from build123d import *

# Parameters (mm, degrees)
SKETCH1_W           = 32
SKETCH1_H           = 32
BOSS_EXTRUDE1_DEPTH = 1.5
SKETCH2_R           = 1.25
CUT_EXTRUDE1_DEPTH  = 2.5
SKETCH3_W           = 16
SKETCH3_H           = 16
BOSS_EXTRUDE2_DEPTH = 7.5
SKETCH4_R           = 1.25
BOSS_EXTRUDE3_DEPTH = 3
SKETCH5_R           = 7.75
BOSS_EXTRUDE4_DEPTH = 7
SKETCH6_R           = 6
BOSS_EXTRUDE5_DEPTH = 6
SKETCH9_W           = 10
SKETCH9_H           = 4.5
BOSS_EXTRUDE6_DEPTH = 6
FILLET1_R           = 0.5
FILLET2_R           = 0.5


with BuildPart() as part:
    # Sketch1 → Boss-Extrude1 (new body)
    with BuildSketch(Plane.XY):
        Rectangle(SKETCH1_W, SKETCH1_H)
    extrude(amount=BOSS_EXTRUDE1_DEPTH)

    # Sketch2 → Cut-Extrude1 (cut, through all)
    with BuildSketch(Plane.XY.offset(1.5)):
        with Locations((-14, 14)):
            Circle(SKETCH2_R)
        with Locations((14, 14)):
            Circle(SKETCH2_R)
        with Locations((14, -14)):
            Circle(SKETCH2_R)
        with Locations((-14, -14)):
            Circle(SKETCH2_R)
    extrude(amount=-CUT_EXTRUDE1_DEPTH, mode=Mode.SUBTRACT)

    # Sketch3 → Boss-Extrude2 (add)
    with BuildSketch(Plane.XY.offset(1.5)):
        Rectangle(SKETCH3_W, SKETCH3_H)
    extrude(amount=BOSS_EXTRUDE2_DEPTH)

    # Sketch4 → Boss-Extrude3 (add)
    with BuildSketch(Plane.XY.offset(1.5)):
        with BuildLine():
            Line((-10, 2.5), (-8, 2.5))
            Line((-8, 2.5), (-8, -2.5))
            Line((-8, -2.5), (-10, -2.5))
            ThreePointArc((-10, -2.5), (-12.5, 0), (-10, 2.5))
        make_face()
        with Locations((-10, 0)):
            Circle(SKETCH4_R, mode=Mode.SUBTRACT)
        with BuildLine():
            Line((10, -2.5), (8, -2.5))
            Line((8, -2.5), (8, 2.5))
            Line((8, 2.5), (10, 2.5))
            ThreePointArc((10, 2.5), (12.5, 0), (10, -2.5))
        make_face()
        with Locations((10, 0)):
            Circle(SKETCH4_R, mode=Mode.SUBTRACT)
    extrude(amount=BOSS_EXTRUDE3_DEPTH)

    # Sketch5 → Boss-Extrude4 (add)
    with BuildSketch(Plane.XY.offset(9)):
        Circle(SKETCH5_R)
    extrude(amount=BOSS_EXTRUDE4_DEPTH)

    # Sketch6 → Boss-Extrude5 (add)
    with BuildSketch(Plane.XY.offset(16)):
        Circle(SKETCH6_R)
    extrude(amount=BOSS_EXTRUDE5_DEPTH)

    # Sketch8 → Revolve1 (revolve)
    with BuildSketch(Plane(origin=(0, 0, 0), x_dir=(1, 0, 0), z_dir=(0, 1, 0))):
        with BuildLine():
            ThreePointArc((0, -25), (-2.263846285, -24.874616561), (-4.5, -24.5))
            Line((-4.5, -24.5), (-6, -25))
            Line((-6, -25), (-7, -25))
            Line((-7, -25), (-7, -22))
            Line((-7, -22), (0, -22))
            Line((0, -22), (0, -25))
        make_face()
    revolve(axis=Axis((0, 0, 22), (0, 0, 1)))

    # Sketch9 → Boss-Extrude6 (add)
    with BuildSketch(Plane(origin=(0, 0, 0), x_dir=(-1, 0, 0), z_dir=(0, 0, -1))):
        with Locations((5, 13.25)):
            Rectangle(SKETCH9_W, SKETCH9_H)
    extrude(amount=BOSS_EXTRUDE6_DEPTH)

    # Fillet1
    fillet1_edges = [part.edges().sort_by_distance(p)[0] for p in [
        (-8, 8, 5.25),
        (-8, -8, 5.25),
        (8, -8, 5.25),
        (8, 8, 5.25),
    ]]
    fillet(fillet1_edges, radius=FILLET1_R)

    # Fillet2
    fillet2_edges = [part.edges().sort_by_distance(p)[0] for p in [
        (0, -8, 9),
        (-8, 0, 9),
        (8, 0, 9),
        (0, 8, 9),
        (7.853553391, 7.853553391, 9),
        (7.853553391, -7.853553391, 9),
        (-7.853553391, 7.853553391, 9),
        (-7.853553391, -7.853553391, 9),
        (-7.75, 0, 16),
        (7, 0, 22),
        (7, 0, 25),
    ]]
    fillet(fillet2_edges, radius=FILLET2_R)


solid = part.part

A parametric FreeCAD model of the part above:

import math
import FreeCAD as App
import Part
import Sketcher
Q = App.Units.Quantity


def edges_at(feature, points):
    """Names of the edges that pass closest to the given points."""
    edges = feature.Shape.Edges
    near = lambda p: min(range(len(edges)), key=lambda i: edges[i].distToShape(Part.Vertex(*p))[0])
    return sorted({f"Edge{near(p) + 1}" for p in points})

doc = App.newDocument("Part")
body = doc.addObject("PartDesign::Body", "Body")

sketch1 = body.newObject("Sketcher::SketchObject", "Sketch")
sketch1.AttachmentSupport = (doc.getObject("XY_Plane"), [""])
sketch1.MapMode = "FlatFace"
sketch1.addGeometry([
    Part.LineSegment(App.Vector(-16, 16, 0), App.Vector(-16, -16, 0)),
    Part.LineSegment(App.Vector(-16, -16, 0), App.Vector(16, -16, 0)),
    Part.LineSegment(App.Vector(16, -16, 0), App.Vector(16, 16, 0)),
    Part.LineSegment(App.Vector(16, 16, 0), App.Vector(-16, 16, 0)),
], False)
sketch1.addConstraint([
    Sketcher.Constraint("Coincident", 0, 2, 1, 1),
    Sketcher.Constraint("Coincident", 1, 2, 2, 1),
    Sketcher.Constraint("Coincident", 2, 2, 3, 1),
    Sketcher.Constraint("Coincident", 3, 2, 0, 1),
    Sketcher.Constraint("Vertical", 0),
    Sketcher.Constraint("Horizontal", 1),
    Sketcher.Constraint("Vertical", 2),
    Sketcher.Constraint("Horizontal", 3),
    Sketcher.Constraint("Symmetric", 0, 2, 2, 2, -1, 1),
    Sketcher.Constraint("Equal", 3, 0),
    Sketcher.Constraint("DistanceX", 1, 1, 1, 2, Q("32 mm")),
])
pad1 = body.newObject("PartDesign::Pad", "Pad")
pad1.Profile = sketch1
pad1.Length = 1.5

sketch2 = body.newObject("Sketcher::SketchObject", "Sketch001")
sketch2.AttachmentSupport = (doc.getObject("XY_Plane"), [""])
sketch2.MapMode = "FlatFace"
sketch2.AttachmentOffset = App.Placement(App.Vector(0, 0, 1.5), App.Rotation())
sketch2.addGeometry([
    Part.Circle(App.Vector(-14, 14, 0), App.Vector(0, 0, 1), 1.2),
    Part.Circle(App.Vector(14, 14, 0), App.Vector(0, 0, 1), 1.2),
    Part.Circle(App.Vector(14, -14, 0), App.Vector(0, 0, 1), 1.2),
    Part.Circle(App.Vector(-14, -14, 0), App.Vector(0, 0, 1), 1.2),
], False)
sketch2.addConstraint([
    Sketcher.Constraint("Equal", 0, 1),
    Sketcher.Constraint("Equal", 1, 2),
    Sketcher.Constraint("Equal", 2, 3),
    Sketcher.Constraint("Symmetric", 0, 3, 2, 3, -1, 1),
    Sketcher.Constraint("Symmetric", 1, 3, 3, 3, -1, 1),
    Sketcher.Constraint("Symmetric", 0, 3, 1, 3, -2),
    Sketcher.Constraint("Diameter", 0, Q("2.5 mm")),
    Sketcher.Constraint("DistanceX", 0, 3, -1, 1, Q("14 mm")),
    Sketcher.Constraint("DistanceY", -1, 1, 0, 3, Q("14 mm")),
])
pocket1 = body.newObject("PartDesign::Pocket", "Pocket")
pocket1.Profile = sketch2
pocket1.Type = "ThroughAll"

sketch3 = body.newObject("Sketcher::SketchObject", "Sketch002")
sketch3.AttachmentSupport = (doc.getObject("XY_Plane"), [""])
sketch3.MapMode = "FlatFace"
sketch3.AttachmentOffset = App.Placement(App.Vector(0, 0, 1.5), App.Rotation())
sketch3.addGeometry([
    Part.LineSegment(App.Vector(-8, 8, 0), App.Vector(-8, -8, 0)),
    Part.LineSegment(App.Vector(-8, -8, 0), App.Vector(8, -8, 0)),
    Part.LineSegment(App.Vector(8, -8, 0), App.Vector(8, 8, 0)),
    Part.LineSegment(App.Vector(8, 8, 0), App.Vector(-8, 8, 0)),
], False)
sketch3.addConstraint([
    Sketcher.Constraint("Coincident", 0, 2, 1, 1),
    Sketcher.Constraint("Coincident", 1, 2, 2, 1),
    Sketcher.Constraint("Coincident", 2, 2, 3, 1),
    Sketcher.Constraint("Coincident", 3, 2, 0, 1),
    Sketcher.Constraint("Vertical", 0),
    Sketcher.Constraint("Horizontal", 1),
    Sketcher.Constraint("Vertical", 2),
    Sketcher.Constraint("Horizontal", 3),
    Sketcher.Constraint("Symmetric", 0, 2, 2, 2, -1, 1),
    Sketcher.Constraint("Equal", 3, 0),
    Sketcher.Constraint("DistanceX", 1, 1, 1, 2, Q("16 mm")),
])
pad2 = body.newObject("PartDesign::Pad", "Pad001")
pad2.Profile = sketch3
pad2.Length = 7.5

sketch4 = body.newObject("Sketcher::SketchObject", "Sketch003")
sketch4.AttachmentSupport = (doc.getObject("XY_Plane"), [""])
sketch4.MapMode = "FlatFace"
sketch4.AttachmentOffset = App.Placement(App.Vector(0, 0, 1.5), App.Rotation())
sketch4.addGeometry([
    Part.LineSegment(App.Vector(-8, 2.5, 0), App.Vector(-10, 2.5, 0)),
    Part.ArcOfCircle(Part.Circle(App.Vector(-10, 0, 0), App.Vector(0, 0, 1), 2.5), math.radians(90), math.radians(270)),
    Part.LineSegment(App.Vector(-10, -2.5, 0), App.Vector(-8, -2.5, 0)),
    Part.LineSegment(App.Vector(-8, -2.5, 0), App.Vector(-8, 2.5, 0)),
    Part.Circle(App.Vector(-10, 0, 0), App.Vector(0, 0, 1), 1.2),
    Part.LineSegment(App.Vector(8, -2.5, 0), App.Vector(10, -2.5, 0)),
    Part.ArcOfCircle(Part.Circle(App.Vector(10, 0, 0), App.Vector(0, 0, 1), 2.5), math.radians(-90), math.radians(90)),
    Part.LineSegment(App.Vector(10, 2.5, 0), App.Vector(8, 2.5, 0)),
    Part.LineSegment(App.Vector(8, 2.5, 0), App.Vector(8, -2.5, 0)),
    Part.Circle(App.Vector(10, 0, 0), App.Vector(0, 0, 1), 1.2),
], False)
sketch4.addConstraint([
    Sketcher.Constraint("Tangent", 0, 2, 1, 1),
    Sketcher.Constraint("Tangent", 1, 2, 2, 1),
    Sketcher.Constraint("Coincident", 2, 2, 3, 1),
    Sketcher.Constraint("Coincident", 3, 2, 0, 1),
    Sketcher.Constraint("Tangent", 5, 2, 6, 1),
    Sketcher.Constraint("Tangent", 6, 2, 7, 1),
    Sketcher.Constraint("Coincident", 7, 2, 8, 1),
    Sketcher.Constraint("Coincident", 8, 2, 5, 1),
    Sketcher.Constraint("Horizontal", 0),
    Sketcher.Constraint("Horizontal", 2),
    Sketcher.Constraint("Vertical", 3),
    Sketcher.Constraint("Horizontal", 5),
    Sketcher.Constraint("Horizontal", 7),
    Sketcher.Constraint("Vertical", 8),
    Sketcher.Constraint("Coincident", 4, 3, 1, 3),
    Sketcher.Constraint("Coincident", 9, 3, 6, 3),
    Sketcher.Constraint("Equal", 1, 6),
    Sketcher.Constraint("Equal", 4, 9),
    Sketcher.Constraint("Symmetric", 1, 3, 6, 3, -1, 1),
    Sketcher.Constraint("Symmetric", 3, 2, 7, 2, -2),
    Sketcher.Constraint("Diameter", 4, Q("2.5 mm")),
    Sketcher.Constraint("Radius", 1, Q("2.5 mm")),
    Sketcher.Constraint("DistanceX", 0, 2, 0, 1, Q("2 mm")),
    Sketcher.Constraint("DistanceX", 1, 3, -1, 1, Q("10 mm")),
])
pad3 = body.newObject("PartDesign::Pad", "Pad002")
pad3.Profile = sketch4
pad3.Length = 3

sketch5 = body.newObject("Sketcher::SketchObject", "Sketch004")
sketch5.AttachmentSupport = (doc.getObject("XY_Plane"), [""])
sketch5.MapMode = "FlatFace"
sketch5.AttachmentOffset = App.Placement(App.Vector(0, 0, 9), App.Rotation())
sketch5.addGeometry(Part.Circle(App.Vector(0, 0, 0), App.Vector(0, 0, 1), 8), False)
sketch5.addConstraint([
    Sketcher.Constraint("Coincident", 0, 3, -1, 1),
    Sketcher.Constraint("Diameter", 0, Q("15.5 mm")),
])
pad4 = body.newObject("PartDesign::Pad", "Pad003")
pad4.Profile = sketch5
pad4.Length = 7

sketch6 = body.newObject("Sketcher::SketchObject", "Sketch005")
sketch6.AttachmentSupport = (doc.getObject("XY_Plane"), [""])
sketch6.MapMode = "FlatFace"
sketch6.AttachmentOffset = App.Placement(App.Vector(0, 0, 16), App.Rotation())
sketch6.addGeometry(Part.Circle(App.Vector(0, 0, 0), App.Vector(0, 0, 1), 6), False)
sketch6.addConstraint([
    Sketcher.Constraint("Coincident", 0, 3, -1, 1),
    Sketcher.Constraint("Diameter", 0, Q("12 mm")),
])
pad5 = body.newObject("PartDesign::Pad", "Pad004")
pad5.Profile = sketch6
pad5.Length = 6

sketch7 = body.newObject("Sketcher::SketchObject", "Sketch006")
sketch7.AttachmentSupport = (doc.getObject("XZ_Plane"), [""])
sketch7.MapMode = "FlatFace"
sketch7.addGeometry([
    Part.ArcOfCircle(Part.Circle(App.Vector(0, 4.5, 0), App.Vector(0, 0, 1), 20.5), math.radians(90), math.radians(102.68)),
    Part.LineSegment(App.Vector(0, 25, 0), App.Vector(0, 22, 0)),
    Part.LineSegment(App.Vector(0, 22, 0), App.Vector(-7, 22, 0)),
    Part.LineSegment(App.Vector(-7, 22, 0), App.Vector(-7, 25, 0)),
    Part.LineSegment(App.Vector(-7, 25, 0), App.Vector(-6, 25, 0)),
    Part.LineSegment(App.Vector(-6, 25, 0), App.Vector(-4.5, 24.5, 0)),
], False)
sketch7.addConstraint([
    Sketcher.Constraint("Coincident", 0, 1, 1, 1),
    Sketcher.Constraint("Coincident", 1, 2, 2, 1),
    Sketcher.Constraint("Coincident", 2, 2, 3, 1),
    Sketcher.Constraint("Coincident", 3, 2, 4, 1),
    Sketcher.Constraint("Coincident", 4, 2, 5, 1),
    Sketcher.Constraint("Coincident", 5, 2, 0, 2),
    Sketcher.Constraint("Vertical", 1),
    Sketcher.Constraint("Horizontal", 2),
    Sketcher.Constraint("Vertical", 3),
    Sketcher.Constraint("Horizontal", 4),
    Sketcher.Constraint("PointOnObject", 0, 3, -2),
    Sketcher.Constraint("PointOnObject", 0, 1, -2),
    Sketcher.Constraint("Horizontal", 0, 1, 3, 2),
    Sketcher.Constraint("Radius", 0, Q("20.5 mm")),
    Sketcher.Constraint("DistanceX", 2, 2, 2, 1, Q("7 mm")),
    Sketcher.Constraint("DistanceX", 4, 1, 4, 2, Q("1 mm")),
    Sketcher.Constraint("DistanceY", 1, 2, 1, 1, Q("3 mm")),
    Sketcher.Constraint("DistanceY", -1, 1, 0, 1, Q("25 mm")),
    Sketcher.Constraint("DistanceX", 5, 2, -1, 1, Q("4.5 mm")),
])
revolution = body.newObject("PartDesign::Revolution", "Revolution")
revolution.Profile = sketch7
revolution.ReferenceAxis = (sketch7, ["V_Axis"])
revolution.Angle = 360

sketch8 = body.newObject("Sketcher::SketchObject", "Sketch007")
sketch8.AttachmentSupport = (doc.getObject("XY_Plane"), [""])
sketch8.MapMode = "FlatFace"
sketch8.addGeometry([
    Part.LineSegment(App.Vector(0, 15.5, 0), App.Vector(0, 11, 0)),
    Part.LineSegment(App.Vector(0, 11, 0), App.Vector(-10, 11, 0)),
    Part.LineSegment(App.Vector(-10, 11, 0), App.Vector(-10, 15.5, 0)),
    Part.LineSegment(App.Vector(-10, 15.5, 0), App.Vector(0, 15.5, 0)),
], False)
sketch8.addConstraint([
    Sketcher.Constraint("Coincident", 0, 2, 1, 1),
    Sketcher.Constraint("Coincident", 1, 2, 2, 1),
    Sketcher.Constraint("Coincident", 2, 2, 3, 1),
    Sketcher.Constraint("Coincident", 3, 2, 0, 1),
    Sketcher.Constraint("Vertical", 0),
    Sketcher.Constraint("Horizontal", 1),
    Sketcher.Constraint("Vertical", 2),
    Sketcher.Constraint("Horizontal", 3),
    Sketcher.Constraint("PointOnObject", 0, 2, -2),
    Sketcher.Constraint("DistanceX", 1, 2, 1, 1, Q("10 mm")),
    Sketcher.Constraint("DistanceY", 0, 2, 0, 1, Q("4.5 mm")),
    Sketcher.Constraint("DistanceY", -1, 1, 0, 2, Q("11 mm")),
])
pad6 = body.newObject("PartDesign::Pad", "Pad005")
pad6.Profile = sketch8
pad6.Length = 6
pad6.Reversed = True
doc.recompute()

fillet = body.newObject("PartDesign::Fillet", "Fillet")
fillet.Base = (pad6, edges_at(pad6, [
    (-8, 8, 5.25),
    (-8, -8, 5.25),
    (8, -8, 5.25),
    (8, 8, 5.25),
]))
fillet.Radius = 0.5
doc.recompute()

fillet2 = body.newObject("PartDesign::Fillet", "Fillet001")
fillet2.Base = (fillet, edges_at(fillet, [
    (0, -8, 9),
    (-8, 0, 9),
    (8, 0, 9),
    (0, 8, 9),
    (7.854, 7.854, 9),
    (7.854, -7.854, 9),
    (-7.854, 7.854, 9),
    (-7.854, -7.854, 9),
    (-7.75, 0, 16),
    (7, 0, 22),
    (7, 0, 25),
]))
fillet2.Radius = 0.5

doc.recompute()
